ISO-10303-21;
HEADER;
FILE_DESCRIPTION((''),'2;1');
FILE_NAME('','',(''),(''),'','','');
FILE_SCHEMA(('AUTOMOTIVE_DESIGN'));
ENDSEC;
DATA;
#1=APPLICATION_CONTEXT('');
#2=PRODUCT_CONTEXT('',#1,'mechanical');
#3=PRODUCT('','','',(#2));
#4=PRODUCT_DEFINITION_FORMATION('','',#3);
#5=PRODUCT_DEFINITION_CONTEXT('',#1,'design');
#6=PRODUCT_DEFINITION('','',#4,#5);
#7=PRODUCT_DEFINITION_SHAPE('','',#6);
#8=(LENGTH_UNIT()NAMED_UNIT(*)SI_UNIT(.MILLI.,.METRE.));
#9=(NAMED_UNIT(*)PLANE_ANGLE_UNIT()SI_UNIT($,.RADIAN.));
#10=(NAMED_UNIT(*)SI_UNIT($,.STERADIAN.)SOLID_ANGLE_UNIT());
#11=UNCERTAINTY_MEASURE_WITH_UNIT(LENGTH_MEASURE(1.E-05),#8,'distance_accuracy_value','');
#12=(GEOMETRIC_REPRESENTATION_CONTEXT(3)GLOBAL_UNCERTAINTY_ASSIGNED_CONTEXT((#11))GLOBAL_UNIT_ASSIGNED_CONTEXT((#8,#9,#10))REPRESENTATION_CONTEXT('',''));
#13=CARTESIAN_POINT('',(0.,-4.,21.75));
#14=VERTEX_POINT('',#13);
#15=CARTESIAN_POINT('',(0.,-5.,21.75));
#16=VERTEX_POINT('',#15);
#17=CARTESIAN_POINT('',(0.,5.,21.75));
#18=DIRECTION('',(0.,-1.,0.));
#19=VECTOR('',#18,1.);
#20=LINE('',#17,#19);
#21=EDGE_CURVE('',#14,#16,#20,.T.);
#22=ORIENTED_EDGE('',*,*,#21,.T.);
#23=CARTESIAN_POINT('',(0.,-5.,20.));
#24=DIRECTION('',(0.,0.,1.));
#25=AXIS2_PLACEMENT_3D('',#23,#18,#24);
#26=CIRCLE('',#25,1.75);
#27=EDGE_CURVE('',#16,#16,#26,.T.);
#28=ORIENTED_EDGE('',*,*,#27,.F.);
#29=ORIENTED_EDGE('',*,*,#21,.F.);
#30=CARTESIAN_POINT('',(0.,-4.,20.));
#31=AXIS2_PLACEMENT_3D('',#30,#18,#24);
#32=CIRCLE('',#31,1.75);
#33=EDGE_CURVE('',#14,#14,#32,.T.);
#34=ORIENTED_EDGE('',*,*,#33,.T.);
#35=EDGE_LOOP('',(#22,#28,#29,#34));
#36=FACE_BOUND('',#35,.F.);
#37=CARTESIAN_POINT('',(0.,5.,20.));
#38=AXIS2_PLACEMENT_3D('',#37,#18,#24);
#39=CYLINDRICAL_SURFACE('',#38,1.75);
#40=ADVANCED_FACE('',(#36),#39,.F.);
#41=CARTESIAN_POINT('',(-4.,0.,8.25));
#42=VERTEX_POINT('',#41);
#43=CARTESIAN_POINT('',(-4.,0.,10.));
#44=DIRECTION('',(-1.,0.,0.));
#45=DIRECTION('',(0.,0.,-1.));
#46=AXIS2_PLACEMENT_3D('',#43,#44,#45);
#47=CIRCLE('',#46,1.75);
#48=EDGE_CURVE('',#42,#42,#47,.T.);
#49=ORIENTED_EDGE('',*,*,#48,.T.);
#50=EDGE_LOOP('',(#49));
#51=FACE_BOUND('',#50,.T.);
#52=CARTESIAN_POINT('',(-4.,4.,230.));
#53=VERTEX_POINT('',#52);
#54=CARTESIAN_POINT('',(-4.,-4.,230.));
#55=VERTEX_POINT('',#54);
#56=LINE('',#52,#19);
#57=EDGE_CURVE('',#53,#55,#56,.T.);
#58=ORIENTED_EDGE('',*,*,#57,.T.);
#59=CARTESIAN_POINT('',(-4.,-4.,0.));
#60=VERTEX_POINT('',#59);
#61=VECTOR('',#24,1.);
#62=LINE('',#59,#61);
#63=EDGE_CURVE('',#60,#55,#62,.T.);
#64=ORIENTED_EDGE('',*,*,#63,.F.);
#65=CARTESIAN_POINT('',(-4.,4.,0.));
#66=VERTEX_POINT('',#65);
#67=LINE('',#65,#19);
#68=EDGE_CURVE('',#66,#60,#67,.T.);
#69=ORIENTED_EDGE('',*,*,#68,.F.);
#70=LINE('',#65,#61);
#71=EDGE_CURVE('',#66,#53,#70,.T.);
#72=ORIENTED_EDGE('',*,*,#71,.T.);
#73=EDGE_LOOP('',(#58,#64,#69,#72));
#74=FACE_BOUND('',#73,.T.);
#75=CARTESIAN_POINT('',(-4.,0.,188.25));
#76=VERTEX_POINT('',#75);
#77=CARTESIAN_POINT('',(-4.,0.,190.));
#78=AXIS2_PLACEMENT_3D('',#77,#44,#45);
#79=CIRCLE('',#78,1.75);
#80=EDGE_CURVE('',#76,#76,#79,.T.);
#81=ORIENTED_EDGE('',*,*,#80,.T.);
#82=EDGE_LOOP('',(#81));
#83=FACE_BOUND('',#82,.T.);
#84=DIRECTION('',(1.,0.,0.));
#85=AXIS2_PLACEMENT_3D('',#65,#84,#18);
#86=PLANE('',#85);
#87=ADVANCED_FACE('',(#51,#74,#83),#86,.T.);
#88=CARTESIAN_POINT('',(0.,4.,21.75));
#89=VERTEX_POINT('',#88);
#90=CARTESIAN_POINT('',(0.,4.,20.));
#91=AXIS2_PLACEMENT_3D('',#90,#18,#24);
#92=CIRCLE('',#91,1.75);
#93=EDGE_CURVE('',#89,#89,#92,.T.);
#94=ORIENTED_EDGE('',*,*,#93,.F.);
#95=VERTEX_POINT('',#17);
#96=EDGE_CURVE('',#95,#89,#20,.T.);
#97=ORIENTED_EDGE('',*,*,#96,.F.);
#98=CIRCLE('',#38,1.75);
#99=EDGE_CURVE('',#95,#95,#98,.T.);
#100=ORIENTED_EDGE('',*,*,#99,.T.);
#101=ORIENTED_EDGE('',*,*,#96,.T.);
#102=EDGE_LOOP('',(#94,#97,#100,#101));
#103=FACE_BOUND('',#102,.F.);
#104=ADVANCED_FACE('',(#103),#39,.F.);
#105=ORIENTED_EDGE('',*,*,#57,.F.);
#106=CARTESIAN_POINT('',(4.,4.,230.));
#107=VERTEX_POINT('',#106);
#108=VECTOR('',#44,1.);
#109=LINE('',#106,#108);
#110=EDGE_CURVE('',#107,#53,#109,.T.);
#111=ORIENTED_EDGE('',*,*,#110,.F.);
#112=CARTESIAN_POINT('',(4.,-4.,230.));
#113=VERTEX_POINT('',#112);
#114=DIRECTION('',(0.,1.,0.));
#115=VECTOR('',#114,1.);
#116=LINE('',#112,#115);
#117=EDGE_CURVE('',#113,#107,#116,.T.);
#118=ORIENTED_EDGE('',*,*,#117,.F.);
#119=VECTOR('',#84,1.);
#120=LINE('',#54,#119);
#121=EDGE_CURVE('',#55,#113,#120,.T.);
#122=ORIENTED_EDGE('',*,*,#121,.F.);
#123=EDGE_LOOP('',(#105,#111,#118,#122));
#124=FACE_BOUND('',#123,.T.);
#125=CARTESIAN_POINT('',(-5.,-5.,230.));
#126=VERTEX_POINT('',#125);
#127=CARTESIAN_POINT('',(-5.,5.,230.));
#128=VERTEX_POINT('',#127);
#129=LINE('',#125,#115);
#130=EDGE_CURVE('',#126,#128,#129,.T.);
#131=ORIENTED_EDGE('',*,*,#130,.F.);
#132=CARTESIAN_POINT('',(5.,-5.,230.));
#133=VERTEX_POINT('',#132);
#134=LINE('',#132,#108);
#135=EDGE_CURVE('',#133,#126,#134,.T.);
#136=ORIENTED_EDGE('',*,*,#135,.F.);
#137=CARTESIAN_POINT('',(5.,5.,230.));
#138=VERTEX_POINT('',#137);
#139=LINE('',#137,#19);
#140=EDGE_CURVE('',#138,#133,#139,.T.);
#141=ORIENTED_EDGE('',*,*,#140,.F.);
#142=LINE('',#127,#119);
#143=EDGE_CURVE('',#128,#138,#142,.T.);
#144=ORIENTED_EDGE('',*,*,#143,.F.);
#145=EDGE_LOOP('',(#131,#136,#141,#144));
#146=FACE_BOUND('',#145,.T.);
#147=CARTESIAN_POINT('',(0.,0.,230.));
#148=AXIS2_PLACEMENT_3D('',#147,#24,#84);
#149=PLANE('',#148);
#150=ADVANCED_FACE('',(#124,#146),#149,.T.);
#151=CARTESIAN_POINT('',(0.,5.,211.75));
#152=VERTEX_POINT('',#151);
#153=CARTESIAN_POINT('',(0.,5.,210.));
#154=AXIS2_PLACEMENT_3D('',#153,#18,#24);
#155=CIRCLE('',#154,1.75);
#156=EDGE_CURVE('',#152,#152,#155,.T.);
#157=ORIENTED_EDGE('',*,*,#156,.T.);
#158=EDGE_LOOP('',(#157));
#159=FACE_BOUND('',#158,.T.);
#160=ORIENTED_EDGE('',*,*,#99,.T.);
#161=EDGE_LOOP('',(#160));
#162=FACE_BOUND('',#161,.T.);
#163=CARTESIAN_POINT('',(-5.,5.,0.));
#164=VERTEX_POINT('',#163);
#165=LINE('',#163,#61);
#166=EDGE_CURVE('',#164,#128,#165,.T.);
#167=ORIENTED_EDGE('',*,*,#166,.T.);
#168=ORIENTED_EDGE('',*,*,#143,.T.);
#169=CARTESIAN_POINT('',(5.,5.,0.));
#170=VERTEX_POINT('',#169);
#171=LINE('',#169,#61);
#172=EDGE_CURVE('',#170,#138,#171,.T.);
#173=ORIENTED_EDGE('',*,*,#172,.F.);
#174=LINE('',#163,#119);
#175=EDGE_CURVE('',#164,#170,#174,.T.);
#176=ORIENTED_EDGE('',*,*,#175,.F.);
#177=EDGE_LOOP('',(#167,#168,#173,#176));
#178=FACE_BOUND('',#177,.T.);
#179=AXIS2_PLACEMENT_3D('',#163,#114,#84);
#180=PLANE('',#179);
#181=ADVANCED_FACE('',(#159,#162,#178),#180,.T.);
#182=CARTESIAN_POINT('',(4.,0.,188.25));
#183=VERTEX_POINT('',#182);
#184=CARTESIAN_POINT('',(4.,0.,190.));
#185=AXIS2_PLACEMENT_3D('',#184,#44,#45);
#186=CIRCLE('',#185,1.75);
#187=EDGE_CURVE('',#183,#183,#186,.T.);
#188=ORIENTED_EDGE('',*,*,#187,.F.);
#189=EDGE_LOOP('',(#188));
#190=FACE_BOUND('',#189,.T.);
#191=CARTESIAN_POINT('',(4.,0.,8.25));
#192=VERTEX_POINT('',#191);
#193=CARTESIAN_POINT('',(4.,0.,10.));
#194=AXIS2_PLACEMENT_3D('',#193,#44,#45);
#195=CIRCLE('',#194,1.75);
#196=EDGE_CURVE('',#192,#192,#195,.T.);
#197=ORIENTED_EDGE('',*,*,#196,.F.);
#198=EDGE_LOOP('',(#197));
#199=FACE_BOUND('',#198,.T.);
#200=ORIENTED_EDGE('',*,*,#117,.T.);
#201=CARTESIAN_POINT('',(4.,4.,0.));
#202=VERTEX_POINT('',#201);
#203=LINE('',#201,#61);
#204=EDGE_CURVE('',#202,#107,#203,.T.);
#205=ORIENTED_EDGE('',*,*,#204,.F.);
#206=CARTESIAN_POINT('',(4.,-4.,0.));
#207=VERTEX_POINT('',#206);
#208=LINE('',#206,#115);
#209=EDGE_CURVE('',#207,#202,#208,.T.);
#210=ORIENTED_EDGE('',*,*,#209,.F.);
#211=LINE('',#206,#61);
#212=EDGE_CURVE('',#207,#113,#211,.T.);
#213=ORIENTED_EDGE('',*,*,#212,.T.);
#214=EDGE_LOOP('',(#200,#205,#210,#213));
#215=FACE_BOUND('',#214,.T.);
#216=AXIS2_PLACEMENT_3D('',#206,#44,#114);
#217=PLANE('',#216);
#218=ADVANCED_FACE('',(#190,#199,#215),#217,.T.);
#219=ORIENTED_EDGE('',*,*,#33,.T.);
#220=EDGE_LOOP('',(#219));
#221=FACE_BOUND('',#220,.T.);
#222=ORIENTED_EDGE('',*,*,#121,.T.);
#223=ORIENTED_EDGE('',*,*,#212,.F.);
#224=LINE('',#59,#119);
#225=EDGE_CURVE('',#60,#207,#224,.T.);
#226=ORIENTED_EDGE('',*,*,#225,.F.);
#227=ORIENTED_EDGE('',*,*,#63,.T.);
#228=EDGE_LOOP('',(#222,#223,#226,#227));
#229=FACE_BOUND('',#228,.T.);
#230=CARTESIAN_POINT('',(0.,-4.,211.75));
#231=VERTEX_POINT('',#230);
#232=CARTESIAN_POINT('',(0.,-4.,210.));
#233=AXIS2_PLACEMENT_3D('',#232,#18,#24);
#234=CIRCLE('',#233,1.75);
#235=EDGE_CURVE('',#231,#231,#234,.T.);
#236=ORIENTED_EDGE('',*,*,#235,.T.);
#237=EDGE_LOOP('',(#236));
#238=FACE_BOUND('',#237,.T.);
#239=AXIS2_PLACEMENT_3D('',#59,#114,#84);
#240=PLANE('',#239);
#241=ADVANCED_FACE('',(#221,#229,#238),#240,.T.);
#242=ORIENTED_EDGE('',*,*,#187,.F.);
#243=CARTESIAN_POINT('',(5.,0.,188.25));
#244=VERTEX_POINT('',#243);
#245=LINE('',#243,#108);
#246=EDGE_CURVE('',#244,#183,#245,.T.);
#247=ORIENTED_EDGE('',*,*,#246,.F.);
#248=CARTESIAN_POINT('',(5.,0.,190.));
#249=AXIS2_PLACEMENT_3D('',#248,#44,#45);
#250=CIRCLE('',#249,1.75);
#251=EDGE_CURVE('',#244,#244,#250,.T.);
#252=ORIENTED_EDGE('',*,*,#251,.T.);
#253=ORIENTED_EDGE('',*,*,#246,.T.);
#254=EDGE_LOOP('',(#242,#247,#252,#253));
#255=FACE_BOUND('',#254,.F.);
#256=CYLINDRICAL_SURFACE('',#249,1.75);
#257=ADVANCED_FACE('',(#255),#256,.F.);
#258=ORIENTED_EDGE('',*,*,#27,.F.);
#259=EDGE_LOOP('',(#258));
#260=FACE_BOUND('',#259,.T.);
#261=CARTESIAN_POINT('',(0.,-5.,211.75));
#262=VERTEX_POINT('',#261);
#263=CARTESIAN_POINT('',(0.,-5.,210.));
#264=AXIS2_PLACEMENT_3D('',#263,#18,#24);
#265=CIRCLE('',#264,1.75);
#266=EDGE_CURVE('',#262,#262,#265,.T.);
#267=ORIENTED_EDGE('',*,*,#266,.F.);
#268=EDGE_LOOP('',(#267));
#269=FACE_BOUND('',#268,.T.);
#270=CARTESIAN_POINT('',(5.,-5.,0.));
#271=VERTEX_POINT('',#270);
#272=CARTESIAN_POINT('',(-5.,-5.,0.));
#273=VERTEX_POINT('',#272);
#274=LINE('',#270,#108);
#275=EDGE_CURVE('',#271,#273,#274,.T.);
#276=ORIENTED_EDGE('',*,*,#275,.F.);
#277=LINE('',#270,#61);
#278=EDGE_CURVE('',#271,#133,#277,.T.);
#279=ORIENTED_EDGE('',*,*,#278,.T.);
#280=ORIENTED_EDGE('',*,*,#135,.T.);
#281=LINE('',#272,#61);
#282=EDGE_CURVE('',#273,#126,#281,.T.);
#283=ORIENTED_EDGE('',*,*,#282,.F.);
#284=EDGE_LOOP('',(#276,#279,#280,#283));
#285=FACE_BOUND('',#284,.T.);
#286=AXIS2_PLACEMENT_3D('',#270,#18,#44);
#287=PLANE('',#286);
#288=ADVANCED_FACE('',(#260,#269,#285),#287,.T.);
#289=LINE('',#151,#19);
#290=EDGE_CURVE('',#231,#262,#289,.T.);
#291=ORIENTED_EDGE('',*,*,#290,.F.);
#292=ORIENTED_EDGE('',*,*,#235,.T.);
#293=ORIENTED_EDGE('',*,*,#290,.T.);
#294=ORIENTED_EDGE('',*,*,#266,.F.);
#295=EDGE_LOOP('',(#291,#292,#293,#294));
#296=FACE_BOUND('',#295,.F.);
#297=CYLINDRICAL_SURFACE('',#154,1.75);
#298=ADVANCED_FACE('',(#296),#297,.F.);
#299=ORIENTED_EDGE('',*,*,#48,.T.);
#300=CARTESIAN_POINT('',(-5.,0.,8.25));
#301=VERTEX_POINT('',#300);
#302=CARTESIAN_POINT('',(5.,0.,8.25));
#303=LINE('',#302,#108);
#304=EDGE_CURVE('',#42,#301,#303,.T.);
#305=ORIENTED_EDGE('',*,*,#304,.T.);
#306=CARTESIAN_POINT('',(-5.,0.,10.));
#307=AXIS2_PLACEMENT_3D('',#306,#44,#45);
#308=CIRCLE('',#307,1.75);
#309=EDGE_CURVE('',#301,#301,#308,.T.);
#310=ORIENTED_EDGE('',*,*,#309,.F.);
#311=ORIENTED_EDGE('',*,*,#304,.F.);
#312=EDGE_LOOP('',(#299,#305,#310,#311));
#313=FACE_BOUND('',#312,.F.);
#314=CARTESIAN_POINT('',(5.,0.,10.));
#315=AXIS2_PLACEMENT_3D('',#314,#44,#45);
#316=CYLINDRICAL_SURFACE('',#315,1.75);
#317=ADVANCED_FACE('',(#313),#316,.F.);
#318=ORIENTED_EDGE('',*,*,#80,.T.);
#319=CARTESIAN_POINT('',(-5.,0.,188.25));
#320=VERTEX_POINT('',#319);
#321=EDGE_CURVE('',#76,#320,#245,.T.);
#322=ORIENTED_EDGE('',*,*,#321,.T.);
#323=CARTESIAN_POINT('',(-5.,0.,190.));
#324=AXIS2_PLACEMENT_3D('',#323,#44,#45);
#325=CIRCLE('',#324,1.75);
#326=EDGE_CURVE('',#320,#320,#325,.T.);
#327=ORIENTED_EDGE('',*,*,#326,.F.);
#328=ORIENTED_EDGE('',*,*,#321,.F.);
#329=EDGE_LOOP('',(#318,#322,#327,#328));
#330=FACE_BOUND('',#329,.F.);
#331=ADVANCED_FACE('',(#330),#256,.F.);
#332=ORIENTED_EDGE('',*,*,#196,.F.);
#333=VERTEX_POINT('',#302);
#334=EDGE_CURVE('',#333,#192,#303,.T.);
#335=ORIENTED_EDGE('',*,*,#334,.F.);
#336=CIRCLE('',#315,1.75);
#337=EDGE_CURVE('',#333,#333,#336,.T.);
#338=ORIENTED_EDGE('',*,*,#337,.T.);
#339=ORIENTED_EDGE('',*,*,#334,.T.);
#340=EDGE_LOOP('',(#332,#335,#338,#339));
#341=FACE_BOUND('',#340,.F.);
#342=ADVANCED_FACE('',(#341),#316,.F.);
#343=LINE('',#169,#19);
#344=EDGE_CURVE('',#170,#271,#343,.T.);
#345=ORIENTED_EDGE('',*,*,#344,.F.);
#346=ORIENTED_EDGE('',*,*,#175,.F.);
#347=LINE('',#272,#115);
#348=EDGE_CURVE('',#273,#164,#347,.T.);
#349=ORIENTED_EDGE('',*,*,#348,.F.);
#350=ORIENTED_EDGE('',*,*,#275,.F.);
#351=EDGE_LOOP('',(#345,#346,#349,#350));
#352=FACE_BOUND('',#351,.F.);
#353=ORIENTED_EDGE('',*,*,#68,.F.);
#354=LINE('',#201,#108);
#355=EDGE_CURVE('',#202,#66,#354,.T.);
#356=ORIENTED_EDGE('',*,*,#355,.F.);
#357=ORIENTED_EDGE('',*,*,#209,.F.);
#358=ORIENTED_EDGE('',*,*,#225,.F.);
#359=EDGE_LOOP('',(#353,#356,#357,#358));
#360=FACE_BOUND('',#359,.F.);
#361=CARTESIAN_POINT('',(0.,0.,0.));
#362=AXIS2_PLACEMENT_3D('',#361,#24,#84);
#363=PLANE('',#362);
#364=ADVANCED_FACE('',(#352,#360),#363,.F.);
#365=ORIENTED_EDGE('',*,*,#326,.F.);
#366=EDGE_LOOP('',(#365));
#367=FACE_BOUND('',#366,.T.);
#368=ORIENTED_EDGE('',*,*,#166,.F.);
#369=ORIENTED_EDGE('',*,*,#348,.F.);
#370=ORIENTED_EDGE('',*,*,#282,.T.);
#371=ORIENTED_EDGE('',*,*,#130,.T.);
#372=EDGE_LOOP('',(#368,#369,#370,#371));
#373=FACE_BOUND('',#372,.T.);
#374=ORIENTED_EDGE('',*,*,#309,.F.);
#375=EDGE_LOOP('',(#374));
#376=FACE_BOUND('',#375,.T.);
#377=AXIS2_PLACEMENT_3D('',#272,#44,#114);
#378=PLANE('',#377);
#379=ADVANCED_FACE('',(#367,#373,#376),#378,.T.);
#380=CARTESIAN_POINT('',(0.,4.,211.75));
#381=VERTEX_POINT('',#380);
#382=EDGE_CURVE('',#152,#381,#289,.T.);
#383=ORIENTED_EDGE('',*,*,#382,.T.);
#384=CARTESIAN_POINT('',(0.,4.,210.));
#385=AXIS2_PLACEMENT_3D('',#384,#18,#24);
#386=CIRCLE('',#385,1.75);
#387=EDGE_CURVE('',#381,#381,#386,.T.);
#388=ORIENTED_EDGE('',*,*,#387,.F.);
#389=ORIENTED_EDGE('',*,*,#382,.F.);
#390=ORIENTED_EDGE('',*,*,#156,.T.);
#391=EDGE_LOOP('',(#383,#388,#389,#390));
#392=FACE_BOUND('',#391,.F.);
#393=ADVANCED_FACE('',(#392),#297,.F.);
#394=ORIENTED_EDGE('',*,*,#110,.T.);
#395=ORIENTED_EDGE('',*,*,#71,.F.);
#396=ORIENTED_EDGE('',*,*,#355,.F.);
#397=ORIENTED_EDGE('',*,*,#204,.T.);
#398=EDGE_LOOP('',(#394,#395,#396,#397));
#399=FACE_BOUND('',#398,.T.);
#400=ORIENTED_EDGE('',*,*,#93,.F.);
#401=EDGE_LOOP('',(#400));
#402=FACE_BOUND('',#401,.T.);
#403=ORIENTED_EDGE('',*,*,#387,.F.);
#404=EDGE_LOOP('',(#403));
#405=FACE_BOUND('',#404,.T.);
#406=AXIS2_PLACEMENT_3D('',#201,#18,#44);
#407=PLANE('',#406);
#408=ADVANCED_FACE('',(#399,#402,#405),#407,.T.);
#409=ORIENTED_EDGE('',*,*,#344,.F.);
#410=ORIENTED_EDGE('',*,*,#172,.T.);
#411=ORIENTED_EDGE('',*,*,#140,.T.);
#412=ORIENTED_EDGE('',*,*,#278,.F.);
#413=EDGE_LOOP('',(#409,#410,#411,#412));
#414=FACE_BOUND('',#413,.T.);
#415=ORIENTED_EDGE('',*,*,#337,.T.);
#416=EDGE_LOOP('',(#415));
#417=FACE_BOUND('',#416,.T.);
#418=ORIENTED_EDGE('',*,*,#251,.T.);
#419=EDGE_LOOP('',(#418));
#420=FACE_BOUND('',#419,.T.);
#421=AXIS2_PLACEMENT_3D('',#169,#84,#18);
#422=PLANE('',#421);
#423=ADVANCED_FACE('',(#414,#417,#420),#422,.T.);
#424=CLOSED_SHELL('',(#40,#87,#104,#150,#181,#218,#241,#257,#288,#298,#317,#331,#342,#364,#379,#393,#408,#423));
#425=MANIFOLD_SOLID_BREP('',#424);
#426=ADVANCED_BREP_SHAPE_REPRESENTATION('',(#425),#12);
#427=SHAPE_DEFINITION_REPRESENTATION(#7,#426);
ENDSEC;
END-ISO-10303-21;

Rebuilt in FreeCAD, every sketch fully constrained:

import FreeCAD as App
import Part
import Sketcher
from FreeCAD import Vector
Q = App.Units.Quantity

doc = App.newDocument("Part")
body = doc.addObject("PartDesign::Body", "Body")

sketch1 = body.newObject("Sketcher::SketchObject", "Sketch")
sketch1.AttachmentSupport = (doc.getObject("XY_Plane"), [""])
sketch1.MapMode = "FlatFace"
sketch1.addGeometry(Part.LineSegment(Vector(-5, -5, 0), Vector(5, -5, 0)), False)
sketch1.addGeometry(Part.LineSegment(Vector(5, -5, 0), Vector(5, 5, 0)), False)
sketch1.addGeometry(Part.LineSegment(Vector(5, 5, 0), Vector(-5, 5, 0)), False)
sketch1.addGeometry(Part.LineSegment(Vector(-5, 5, 0), Vector(-5, -5, 0)), False)
sketch1.addGeometry(Part.LineSegment(Vector(-4, 4, 0), Vector(4, 4, 0)), False)
sketch1.addGeometry(Part.LineSegment(Vector(4, 4, 0), Vector(4, -4, 0)), False)
sketch1.addGeometry(Part.LineSegment(Vector(4, -4, 0), Vector(-4, -4, 0)), False)
sketch1.addGeometry(Part.LineSegment(Vector(-4, -4, 0), Vector(-4, 4, 0)), False)
sketch1.addConstraint(Sketcher.Constraint("Coincident", 0, 2, 1, 1))
sketch1.addConstraint(Sketcher.Constraint("Coincident", 1, 2, 2, 1))
sketch1.addConstraint(Sketcher.Constraint("Coincident", 2, 2, 3, 1))
sketch1.addConstraint(Sketcher.Constraint("Coincident", 3, 2, 0, 1))
sketch1.addConstraint(Sketcher.Constraint("Coincident", 4, 2, 5, 1))
sketch1.addConstraint(Sketcher.Constraint("Coincident", 5, 2, 6, 1))
sketch1.addConstraint(Sketcher.Constraint("Coincident", 6, 2, 7, 1))
sketch1.addConstraint(Sketcher.Constraint("Coincident", 7, 2, 4, 1))
sketch1.addConstraint(Sketcher.Constraint("Horizontal", 0))
sketch1.addConstraint(Sketcher.Constraint("Vertical", 1))
sketch1.addConstraint(Sketcher.Constraint("Horizontal", 2))
sketch1.addConstraint(Sketcher.Constraint("Vertical", 3))
sketch1.addConstraint(Sketcher.Constraint("Horizontal", 4))
sketch1.addConstraint(Sketcher.Constraint("Vertical", 5))
sketch1.addConstraint(Sketcher.Constraint("Horizontal", 6))
sketch1.addConstraint(Sketcher.Constraint("Vertical", 7))
sketch1.addConstraint(Sketcher.Constraint("Symmetric", 0, 2, 2, 2, -1, 1))
sketch1.addConstraint(Sketcher.Constraint("Symmetric", 4, 2, 6, 2, -1, 1))
sketch1.addConstraint(Sketcher.Constraint("Equal", 2, 1))
sketch1.addConstraint(Sketcher.Constraint("Equal", 6, 5))
sketch1.addConstraint(Sketcher.Constraint("DistanceX", 0, 1, 0, 2, Q("10 mm")))
sketch1.addConstraint(Sketcher.Constraint("DistanceX", 4, 2, 1, 2, Q("1 mm")))
pad1 = body.newObject("PartDesign::Pad", "Pad")
pad1.Profile = sketch1
pad1.Length = 230

sketch2 = body.newObject("Sketcher::SketchObject", "Sketch001")
sketch2.AttachmentSupport = (doc.getObject("YZ_Plane"), [""])
sketch2.MapMode = "FlatFace"
sketch2.AttachmentOffset = App.Placement(Vector(0, 0, 5), App.Rotation())
sketch2.addGeometry(Part.Circle(Vector(0, 190, 0), Vector(0, 0, 1), 1.8), False)
sketch2.addGeometry(Part.Circle(Vector(0, 10, 0), Vector(0, 0, 1), 1.8), False)
sketch2.addConstraint(Sketcher.Constraint("Equal", 0, 1))
sketch2.addConstraint(Sketcher.Constraint("PointOnObject", 0, 3, -2))
sketch2.addConstraint(Sketcher.Constraint("PointOnObject", 1, 3, -2))
sketch2.addConstraint(Sketcher.Constraint("Diameter", 0, Q("3.5 mm")))
sketch2.addConstraint(Sketcher.Constraint("DistanceY", -1, 1, 0, 3, Q("190 mm")))
sketch2.addConstraint(Sketcher.Constraint("DistanceY", -1, 1, 1, 3, Q("10 mm")))
doc.recompute()
hole = body.newObject("PartDesign::Hole", "Hole")
hole.Profile = sketch2
hole.ThreadType = "None"
hole.Diameter = 3.5
hole.DepthType = "ThroughAll"

sketch3 = body.newObject("Sketcher::SketchObject", "Sketch002")
sketch3.AttachmentSupport = (doc.getObject("XZ_Plane"), [""])
sketch3.MapMode = "FlatFace"
sketch3.AttachmentOffset = App.Placement(Vector(0, 0, -5), App.Rotation())
sketch3.addGeometry(Part.Circle(Vector(0, 210, 0), Vector(0, 0, 1), 1.8), False)
sketch3.addGeometry(Part.Circle(Vector(0, 20, 0), Vector(0, 0, 1), 1.8), False)
sketch3.addConstraint(Sketcher.Constraint("Equal", 0, 1))
sketch3.addConstraint(Sketcher.Constraint("PointOnObject", 0, 3, -2))
sketch3.addConstraint(Sketcher.Constraint("PointOnObject", 1, 3, -2))
sketch3.addConstraint(Sketcher.Constraint("Diameter", 0, Q("3.5 mm")))
sketch3.addConstraint(Sketcher.Constraint("DistanceY", -1, 1, 0, 3, Q("210 mm")))
sketch3.addConstraint(Sketcher.Constraint("DistanceY", -1, 1, 1, 3, Q("20 mm")))
doc.recompute()
hole2 = body.newObject("PartDesign::Hole", "Hole001")
hole2.Profile = sketch3
hole2.ThreadType = "None"
hole2.Diameter = 3.5
hole2.DepthType = "ThroughAll"
hole2.Reversed = True

doc.recompute()
